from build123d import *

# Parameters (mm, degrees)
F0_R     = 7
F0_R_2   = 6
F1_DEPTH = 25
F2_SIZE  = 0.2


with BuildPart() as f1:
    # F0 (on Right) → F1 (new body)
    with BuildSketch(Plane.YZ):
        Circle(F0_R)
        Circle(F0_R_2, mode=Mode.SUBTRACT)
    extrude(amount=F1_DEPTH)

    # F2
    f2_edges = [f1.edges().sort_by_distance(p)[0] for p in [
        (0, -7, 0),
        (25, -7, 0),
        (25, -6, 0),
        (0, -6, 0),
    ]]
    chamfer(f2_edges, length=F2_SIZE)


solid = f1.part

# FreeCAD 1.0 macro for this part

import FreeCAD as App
import Part
import Sketcher
from FreeCAD import Vector


def edges_at(feature, points):
    """Names of the edges that pass closest to the given points."""
    edges = feature.Shape.Edges
    near = lambda p: min(range(len(edges)), key=lambda i: edges[i].distToShape(Part.Vertex(*p))[0])
    return sorted({f"Edge{near(p) + 1}" for p in points})

doc = App.newDocument("Part")
params = doc.addObject("Spreadsheet::Sheet", "Params")
for row, (alias, value) in enumerate([
    ("sketch1_diameter", "14 mm"),
    ("sketch1_diameter2", "12 mm"),
    ("pad1_length", "25 mm"),
    ("chamfer_size", "0.2 mm"),
], start=1):
    params.set(f"A{row}", alias)
    params.set(f"B{row}", "=" + value)
    params.setAlias(f"B{row}", alias)

body = doc.addObject("PartDesign::Body", "Body")

sketch1 = doc.addObject("Sketcher::SketchObject", "Sketch")
body.addObject(sketch1)
sketch1.AttachmentSupport = (doc.YZ_Plane, [""])
sketch1.MapMode = "FlatFace"
sketch1.addGeometry(Part.Circle(Vector(0, 0, 0), Vector(0, 0, 1), 7), False)
sketch1.addGeometry(Part.Circle(Vector(0, 0, 0), Vector(0, 0, 1), 6), False)
sketch1.addConstraint(Sketcher.Constraint("Coincident", 0, 3, -1, 1))
sketch1.addConstraint(Sketcher.Constraint("Coincident", 1, 3, -1, 1))
sketch1.addConstraint(Sketcher.Constraint("Diameter", 0, 14.0))
sketch1.addConstraint(Sketcher.Constraint("Diameter", 1, 12.0))
sketch1.setExpression("Constraints[2]", "Params.sketch1_diameter")
sketch1.setExpression("Constraints[3]", "Params.sketch1_diameter2")
pad1 = doc.addObject("PartDesign::Pad", "Pad")
body.addObject(pad1)
pad1.Profile = sketch1
pad1.setExpression("Length", "Params.pad1_length")
doc.recompute()

chamfer = doc.addObject("PartDesign::Chamfer", "Chamfer")
body.addObject(chamfer)
chamfer.Base = (pad1, edges_at(pad1, [
    (0, -7, 0),
    (25, -7, 0),
    (25, -6, 0),
    (0, -6, 0),
]))
chamfer.setExpression("Size", "Params.chamfer_size")

doc.recompute()
